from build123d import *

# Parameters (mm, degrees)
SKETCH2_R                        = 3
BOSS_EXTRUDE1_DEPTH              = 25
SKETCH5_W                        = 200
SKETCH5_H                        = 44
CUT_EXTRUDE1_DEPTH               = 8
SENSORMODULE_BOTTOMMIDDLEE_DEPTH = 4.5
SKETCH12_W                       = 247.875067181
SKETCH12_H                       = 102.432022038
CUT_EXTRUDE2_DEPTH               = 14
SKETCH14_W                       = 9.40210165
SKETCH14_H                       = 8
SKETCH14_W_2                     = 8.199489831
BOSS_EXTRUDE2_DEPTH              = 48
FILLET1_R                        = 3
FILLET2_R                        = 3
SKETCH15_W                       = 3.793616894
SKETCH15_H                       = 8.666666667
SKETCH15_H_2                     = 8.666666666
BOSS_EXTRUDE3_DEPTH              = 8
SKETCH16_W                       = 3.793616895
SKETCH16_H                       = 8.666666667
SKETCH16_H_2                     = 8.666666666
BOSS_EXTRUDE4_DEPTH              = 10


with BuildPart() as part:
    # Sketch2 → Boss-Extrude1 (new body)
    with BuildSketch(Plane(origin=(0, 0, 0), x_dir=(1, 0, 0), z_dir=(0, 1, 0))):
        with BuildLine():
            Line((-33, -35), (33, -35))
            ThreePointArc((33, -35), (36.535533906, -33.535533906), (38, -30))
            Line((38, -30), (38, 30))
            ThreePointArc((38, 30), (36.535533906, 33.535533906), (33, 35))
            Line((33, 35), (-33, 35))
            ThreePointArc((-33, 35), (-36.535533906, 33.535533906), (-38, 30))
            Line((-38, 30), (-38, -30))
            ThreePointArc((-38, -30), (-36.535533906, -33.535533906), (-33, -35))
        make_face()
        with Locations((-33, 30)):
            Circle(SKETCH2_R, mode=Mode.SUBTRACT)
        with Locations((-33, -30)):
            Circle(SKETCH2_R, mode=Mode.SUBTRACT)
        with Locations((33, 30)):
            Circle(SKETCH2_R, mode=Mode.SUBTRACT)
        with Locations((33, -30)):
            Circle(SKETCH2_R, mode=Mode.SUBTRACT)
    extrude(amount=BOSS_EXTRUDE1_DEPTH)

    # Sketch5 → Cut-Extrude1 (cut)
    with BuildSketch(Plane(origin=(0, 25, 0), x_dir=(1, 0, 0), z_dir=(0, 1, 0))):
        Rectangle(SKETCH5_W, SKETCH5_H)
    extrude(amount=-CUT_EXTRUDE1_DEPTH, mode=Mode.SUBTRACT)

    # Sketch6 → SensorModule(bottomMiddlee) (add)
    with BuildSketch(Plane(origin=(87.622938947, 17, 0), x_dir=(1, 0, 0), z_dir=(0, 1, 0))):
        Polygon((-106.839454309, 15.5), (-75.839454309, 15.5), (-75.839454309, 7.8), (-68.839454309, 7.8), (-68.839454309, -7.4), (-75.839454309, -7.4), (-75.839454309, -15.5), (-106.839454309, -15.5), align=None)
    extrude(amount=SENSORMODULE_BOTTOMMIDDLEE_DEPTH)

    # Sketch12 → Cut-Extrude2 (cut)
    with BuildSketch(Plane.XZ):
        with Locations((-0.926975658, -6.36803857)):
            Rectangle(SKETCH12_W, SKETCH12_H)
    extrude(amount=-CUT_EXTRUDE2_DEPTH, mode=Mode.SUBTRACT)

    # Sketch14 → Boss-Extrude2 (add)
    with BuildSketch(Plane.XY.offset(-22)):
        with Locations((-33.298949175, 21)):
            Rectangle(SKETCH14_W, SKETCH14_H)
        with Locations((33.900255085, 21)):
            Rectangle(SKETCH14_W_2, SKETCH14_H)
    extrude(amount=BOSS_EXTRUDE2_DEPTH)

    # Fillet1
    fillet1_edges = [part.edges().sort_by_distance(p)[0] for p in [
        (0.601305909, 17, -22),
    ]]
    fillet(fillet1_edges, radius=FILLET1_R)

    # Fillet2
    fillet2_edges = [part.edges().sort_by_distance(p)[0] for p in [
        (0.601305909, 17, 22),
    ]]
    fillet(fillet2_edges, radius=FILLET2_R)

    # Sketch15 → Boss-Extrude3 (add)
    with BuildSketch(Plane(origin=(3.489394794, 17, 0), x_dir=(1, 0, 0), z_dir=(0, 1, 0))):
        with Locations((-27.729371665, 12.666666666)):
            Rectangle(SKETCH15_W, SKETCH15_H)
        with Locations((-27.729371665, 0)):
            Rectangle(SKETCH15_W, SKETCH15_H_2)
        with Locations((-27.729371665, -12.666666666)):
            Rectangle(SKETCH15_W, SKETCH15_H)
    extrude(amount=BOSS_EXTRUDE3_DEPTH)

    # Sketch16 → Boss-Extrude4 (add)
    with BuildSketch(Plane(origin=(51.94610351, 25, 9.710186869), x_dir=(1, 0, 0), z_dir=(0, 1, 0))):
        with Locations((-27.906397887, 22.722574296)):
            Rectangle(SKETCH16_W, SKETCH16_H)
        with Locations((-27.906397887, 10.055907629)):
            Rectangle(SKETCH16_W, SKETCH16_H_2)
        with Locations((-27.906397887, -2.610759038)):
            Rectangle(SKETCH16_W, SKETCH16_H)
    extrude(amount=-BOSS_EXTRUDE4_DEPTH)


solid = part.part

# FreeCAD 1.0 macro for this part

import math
import FreeCAD as App
import Part
import Sketcher
Q = App.Units.Quantity


def edges_at(feature, points):
    """Names of the edges that pass closest to the given points."""
    edges = feature.Shape.Edges
    near = lambda p: min(range(len(edges)), key=lambda i: edges[i].distToShape(Part.Vertex(*p))[0])
    return sorted({f"Edge{near(p) + 1}" for p in points})

doc = App.newDocument("Part")
body = doc.addObject("PartDesign::Body", "Body")

sketch1 = doc.addObject("Sketcher::SketchObject", "Sketch")
body.addObject(sketch1)
sketch1.AttachmentSupport = (doc.XZ_Plane, [""])
sketch1.MapMode = "FlatFace"
sketch1.addGeometry([
    Part.LineSegment(App.Vector(-33, 35, 0), App.Vector(33, 35, 0)),
    Part.ArcOfCircle(Part.Circle(App.Vector(33, 30, 0), App.Vector(0, 0, 1), 5), math.radians(0), math.radians(90)),
    Part.LineSegment(App.Vector(38, 30, 0), App.Vector(38, -30, 0)),
    Part.ArcOfCircle(Part.Circle(App.Vector(33, -30, 0), App.Vector(0, 0, 1), 5), math.radians(-90), math.radians(0)),
    Part.LineSegment(App.Vector(33, -35, 0), App.Vector(-33, -35, 0)),
    Part.ArcOfCircle(Part.Circle(App.Vector(-33, -30, 0), App.Vector(0, 0, 1), 5), math.radians(180), math.radians(270)),
    Part.LineSegment(App.Vector(-38, -30, 0), App.Vector(-38, 30, 0)),
    Part.ArcOfCircle(Part.Circle(App.Vector(-33, 30, 0), App.Vector(0, 0, 1), 5), math.radians(90), math.radians(180)),
    Part.Circle(App.Vector(-33, 30, 0), App.Vector(0, 0, 1), 3),
    Part.Circle(App.Vector(33, 30, 0), App.Vector(0, 0, 1), 3),
    Part.Circle(App.Vector(-33, -30, 0), App.Vector(0, 0, 1), 3),
    Part.Circle(App.Vector(33, -30, 0), App.Vector(0, 0, 1), 3),
], False)
sketch1.addConstraint([
    Sketcher.Constraint("Tangent", 0, 2, 1, 2),
    Sketcher.Constraint("Tangent", 1, 1, 2, 1),
    Sketcher.Constraint("Tangent", 2, 2, 3, 2),
    Sketcher.Constraint("Tangent", 3, 1, 4, 1),
    Sketcher.Constraint("Tangent", 4, 2, 5, 2),
    Sketcher.Constraint("Tangent", 5, 1, 6, 1),
    Sketcher.Constraint("Tangent", 6, 2, 7, 2),
    Sketcher.Constraint("Tangent", 7, 1, 0, 1),
    Sketcher.Constraint("Horizontal", 0),
    Sketcher.Constraint("Vertical", 2),
    Sketcher.Constraint("Horizontal", 4),
    Sketcher.Constraint("Vertical", 6),
    Sketcher.Constraint("Coincident", 8, 3, 7, 3),
    Sketcher.Constraint("Coincident", 9, 3, 1, 3),
    Sketcher.Constraint("Coincident", 10, 3, 5, 3),
    Sketcher.Constraint("Coincident", 11, 3, 3, 3),
    Sketcher.Constraint("Equal", 1, 3),
    Sketcher.Constraint("Equal", 3, 5),
    Sketcher.Constraint("Equal", 5, 7),
    Sketcher.Constraint("Equal", 8, 9),
    Sketcher.Constraint("Equal", 9, 10),
    Sketcher.Constraint("Equal", 10, 11),
    Sketcher.Constraint("Symmetric", 1, 3, 5, 3, -1, 1),
    Sketcher.Constraint("Diameter", 8, Q("6 mm")),
    Sketcher.Constraint("Radius", 1, Q("5 mm")),
    Sketcher.Constraint("DistanceX", 0, 1, 0, 2, Q("66 mm")),
    Sketcher.Constraint("DistanceY", 2, 2, 2, 1, Q("60 mm")),
])
pad1 = doc.addObject("PartDesign::Pad", "Pad")
body.addObject(pad1)
pad1.Profile = sketch1
pad1.Length = 25
pad1.Reversed = True

sketch2 = doc.addObject("Sketcher::SketchObject", "Sketch001")
body.addObject(sketch2)
sketch2.AttachmentSupport = (doc.XZ_Plane, [""])
sketch2.MapMode = "FlatFace"
sketch2.AttachmentOffset = App.Placement(App.Vector(0, 0, -25), App.Rotation())
sketch2.addGeometry([
    Part.LineSegment(App.Vector(-100, -22, 0), App.Vector(-100, 22, 0)),
    Part.LineSegment(App.Vector(-100, 22, 0), App.Vector(100, 22, 0)),
    Part.LineSegment(App.Vector(100, 22, 0), App.Vector(100, -22, 0)),
    Part.LineSegment(App.Vector(100, -22, 0), App.Vector(-100, -22, 0)),
], False)
sketch2.addConstraint([
    Sketcher.Constraint("Coincident", 0, 2, 1, 1),
    Sketcher.Constraint("Coincident", 1, 2, 2, 1),
    Sketcher.Constraint("Coincident", 2, 2, 3, 1),
    Sketcher.Constraint("Coincident", 3, 2, 0, 1),
    Sketcher.Constraint("Vertical", 0),
    Sketcher.Constraint("Horizontal", 1),
    Sketcher.Constraint("Vertical", 2),
    Sketcher.Constraint("Horizontal", 3),
    Sketcher.Constraint("Symmetric", 0, 2, 2, 2, -1, 1),
    Sketcher.Constraint("DistanceX", 1, 1, 1, 2, Q("200 mm")),
    Sketcher.Constraint("DistanceY", 0, 1, 0, 2, Q("44 mm")),
])
pocket1 = doc.addObject("PartDesign::Pocket", "Pocket")
body.addObject(pocket1)
pocket1.Profile = sketch2
pocket1.Length = 8
pocket1.Reversed = True

sketch3 = doc.addObject("Sketcher::SketchObject", "Sketch002")
body.addObject(sketch3)
sketch3.AttachmentSupport = (doc.XZ_Plane, [""])
sketch3.MapMode = "FlatFace"
sketch3.AttachmentOffset = App.Placement(App.Vector(0, 0, -17), App.Rotation())
sketch3.addGeometry([
    Part.LineSegment(App.Vector(11.783485, -15.5, 0), App.Vector(-19.216515, -15.5, 0)),
    Part.LineSegment(App.Vector(-19.216515, -15.5, 0), App.Vector(-19.216515, 15.5, 0)),
    Part.LineSegment(App.Vector(-19.216515, 15.5, 0), App.Vector(11.783485, 15.5, 0)),
    Part.LineSegment(App.Vector(11.783485, 15.5, 0), App.Vector(11.783485, 7.4, 0)),
    Part.LineSegment(App.Vector(11.783485, 7.4, 0), App.Vector(18.783485, 7.4, 0)),
    Part.LineSegment(App.Vector(18.783485, 7.4, 0), App.Vector(18.783485, -7.8, 0)),
    Part.LineSegment(App.Vector(18.783485, -7.8, 0), App.Vector(11.783485, -7.8, 0)),
    Part.LineSegment(App.Vector(11.783485, -7.8, 0), App.Vector(11.783485, -15.5, 0)),
], False)
sketch3.addConstraint([
    Sketcher.Constraint("Coincident", 0, 2, 1, 1),
    Sketcher.Constraint("Coincident", 1, 2, 2, 1),
    Sketcher.Constraint("Coincident", 2, 2, 3, 1),
    Sketcher.Constraint("Coincident", 3, 2, 4, 1),
    Sketcher.Constraint("Coincident", 4, 2, 5, 1),
    Sketcher.Constraint("Coincident", 5, 2, 6, 1),
    Sketcher.Constraint("Coincident", 6, 2, 7, 1),
    Sketcher.Constraint("Coincident", 7, 2, 0, 1),
    Sketcher.Constraint("Horizontal", 0),
    Sketcher.Constraint("Vertical", 1),
    Sketcher.Constraint("Horizontal", 2),
    Sketcher.Constraint("Vertical", 3),
    Sketcher.Constraint("Horizontal", 4),
    Sketcher.Constraint("Vertical", 5),
    Sketcher.Constraint("Horizontal", 6),
    Sketcher.Constraint("Vertical", 7),
    Sketcher.Constraint("Symmetric", 2, 2, 7, 2, -1),
    Sketcher.Constraint("Equal", 2, 1),
    Sketcher.Constraint("DistanceX", 0, 2, 0, 1, Q("31 mm")),
    Sketcher.Constraint("DistanceX", 4, 1, 4, 2, Q("7 mm")),
    Sketcher.Constraint("DistanceY", 3, 2, 3, 1, Q("8.1 mm")),
    Sketcher.Constraint("DistanceY", 5, 2, 5, 1, Q("15.2 mm")),
    Sketcher.Constraint("DistanceX", 0, 2, -1, 1, Q("19.216515 mm")),
])
pad2 = doc.addObject("PartDesign::Pad", "Pad001")
body.addObject(pad2)
pad2.Profile = sketch3
pad2.Length = 4.5
pad2.Reversed = True

sketch4 = doc.addObject("Sketcher::SketchObject", "Sketch003")
body.addObject(sketch4)
sketch4.AttachmentSupport = (doc.XZ_Plane, [""])
sketch4.MapMode = "FlatFace"
sketch4.addGeometry([
    Part.LineSegment(App.Vector(-124.864509, 44.847972, 0), App.Vector(-124.864509, -57.58405, 0)),
    Part.LineSegment(App.Vector(-124.864509, -57.58405, 0), App.Vector(123.010558, -57.58405, 0)),
    Part.LineSegment(App.Vector(123.010558, -57.58405, 0), App.Vector(123.010558, 44.847972, 0)),
    Part.LineSegment(App.Vector(123.010558, 44.847972, 0), App.Vector(-124.864509, 44.847972, 0)),
], False)
sketch4.addConstraint([
    Sketcher.Constraint("Coincident", 0, 2, 1, 1),
    Sketcher.Constraint("Coincident", 1, 2, 2, 1),
    Sketcher.Constraint("Coincident", 2, 2, 3, 1),
    Sketcher.Constraint("Coincident", 3, 2, 0, 1),
    Sketcher.Constraint("Vertical", 0),
    Sketcher.Constraint("Horizontal", 1),
    Sketcher.Constraint("Vertical", 2),
    Sketcher.Constraint("Horizontal", 3),
    Sketcher.Constraint("DistanceX", 1, 1, 1, 2, Q("247.875067 mm")),
    Sketcher.Constraint("DistanceY", 0, 2, 0, 1, Q("102.432022 mm")),
    Sketcher.Constraint("DistanceX", 0, 2, -1, 1, Q("124.864509 mm")),
    Sketcher.Constraint("DistanceY", 0, 2, -1, 1, Q("57.58405 mm")),
])
pocket2 = doc.addObject("PartDesign::Pocket", "Pocket001")
body.addObject(pocket2)
pocket2.Profile = sketch4
pocket2.Length = 14

sketch5 = doc.addObject("Sketcher::SketchObject", "Sketch004")
body.addObject(sketch5)
sketch5.AttachmentSupport = (doc.XY_Plane, [""])
sketch5.MapMode = "FlatFace"
sketch5.AttachmentOffset = App.Placement(App.Vector(0, 0, -22), App.Rotation())
sketch5.addGeometry([
    Part.LineSegment(App.Vector(-38, 25, 0), App.Vector(-38, 17, 0)),
    Part.LineSegment(App.Vector(-38, 17, 0), App.Vector(-28.597898, 17, 0)),
    Part.LineSegment(App.Vector(-28.597898, 17, 0), App.Vector(-28.597898, 25, 0)),
    Part.LineSegment(App.Vector(-28.597898, 25, 0), App.Vector(-38, 25, 0)),
    Part.LineSegment(App.Vector(29.80051, 25, 0), App.Vector(29.80051, 17, 0)),
    Part.LineSegment(App.Vector(29.80051, 17, 0), App.Vector(38, 17, 0)),
    Part.LineSegment(App.Vector(38, 17, 0), App.Vector(38, 25, 0)),
    Part.LineSegment(App.Vector(38, 25, 0), App.Vector(29.80051, 25, 0)),
], False)
sketch5.addConstraint([
    Sketcher.Constraint("Coincident", 0, 2, 1, 1),
    Sketcher.Constraint("Coincident", 1, 2, 2, 1),
    Sketcher.Constraint("Coincident", 2, 2, 3, 1),
    Sketcher.Constraint("Coincident", 3, 2, 0, 1),
    Sketcher.Constraint("Coincident", 4, 2, 5, 1),
    Sketcher.Constraint("Coincident", 5, 2, 6, 1),
    Sketcher.Constraint("Coincident", 6, 2, 7, 1),
    Sketcher.Constraint("Coincident", 7, 2, 4, 1),
    Sketcher.Constraint("Vertical", 0),
    Sketcher.Constraint("Horizontal", 1),
    Sketcher.Constraint("Vertical", 2),
    Sketcher.Constraint("Horizontal", 3),
    Sketcher.Constraint("Vertical", 4),
    Sketcher.Constraint("Horizontal", 5),
    Sketcher.Constraint("Vertical", 6),
    Sketcher.Constraint("Horizontal", 7),
    Sketcher.Constraint("Symmetric", 0, 2, 5, 2, -2),
    Sketcher.Constraint("Horizontal", 3, 2, 6, 2),
    Sketcher.Constraint("DistanceY", 0, 2, 0, 1, Q("8 mm")),
    Sketcher.Constraint("DistanceX", 0, 2, -1, 1, Q("38 mm")),
    Sketcher.Constraint("DistanceY", -1, 1, 0, 2, Q("17 mm")),
    Sketcher.Constraint("DistanceX", 1, 1, 1, 2, Q("9.402102 mm")),
    Sketcher.Constraint("DistanceX", 5, 1, 5, 2, Q("8.19949 mm")),
])
pad3 = doc.addObject("PartDesign::Pad", "Pad002")
body.addObject(pad3)
pad3.Profile = sketch5
pad3.Length = 48
doc.recompute()

fillet = doc.addObject("PartDesign::Fillet", "Fillet")
body.addObject(fillet)
fillet.Base = (pad3, edges_at(pad3, [(0.601, 17, -22)]))
fillet.Radius = 3
doc.recompute()

fillet2 = doc.addObject("PartDesign::Fillet", "Fillet001")
body.addObject(fillet2)
fillet2.Base = (fillet, edges_at(fillet, [(0.601, 17, 22)]))
fillet2.Radius = 3

sketch6 = doc.addObject("Sketcher::SketchObject", "Sketch005")
body.addObject(sketch6)
sketch6.AttachmentSupport = (doc.XZ_Plane, [""])
sketch6.MapMode = "FlatFace"
sketch6.AttachmentOffset = App.Placement(App.Vector(0, 0, -17), App.Rotation())
sketch6.addGeometry([
    Part.LineSegment(App.Vector(-26.136785, -17, 0), App.Vector(-26.136785, -8.333333, 0)),
    Part.LineSegment(App.Vector(-26.136785, -8.333333, 0), App.Vector(-22.343168, -8.333333, 0)),
    Part.LineSegment(App.Vector(-22.343168, -8.333333, 0), App.Vector(-22.343168, -17, 0)),
    Part.LineSegment(App.Vector(-22.343168, -17, 0), App.Vector(-26.136785, -17, 0)),
    Part.LineSegment(App.Vector(-26.136785, -4.333333, 0), App.Vector(-26.136785, 4.333333, 0)),
    Part.LineSegment(App.Vector(-26.136785, 4.333333, 0), App.Vector(-22.343168, 4.333333, 0)),
    Part.LineSegment(App.Vector(-22.343168, 4.333333, 0), App.Vector(-22.343168, -4.333333, 0)),
    Part.LineSegment(App.Vector(-22.343168, -4.333333, 0), App.Vector(-26.136785, -4.333333, 0)),
    Part.LineSegment(App.Vector(-26.136785, 8.333333, 0), App.Vector(-26.136785, 17, 0)),
    Part.LineSegment(App.Vector(-26.136785, 17, 0), App.Vector(-22.343168, 17, 0)),
    Part.LineSegment(App.Vector(-22.343168, 17, 0), App.Vector(-22.343168, 8.333333, 0)),
    Part.LineSegment(App.Vector(-22.343168, 8.333333, 0), App.Vector(-26.136785, 8.333333, 0)),
], False)
sketch6.addConstraint([
    Sketcher.Constraint("Coincident", 0, 2, 1, 1),
    Sketcher.Constraint("Coincident", 1, 2, 2, 1),
    Sketcher.Constraint("Coincident", 2, 2, 3, 1),
    Sketcher.Constraint("Coincident", 3, 2, 0, 1),
    Sketcher.Constraint("Coincident", 4, 2, 5, 1),
    Sketcher.Constraint("Coincident", 5, 2, 6, 1),
    Sketcher.Constraint("Coincident", 6, 2, 7, 1),
    Sketcher.Constraint("Coincident", 7, 2, 4, 1),
    Sketcher.Constraint("Coincident", 8, 2, 9, 1),
    Sketcher.Constraint("Coincident", 9, 2, 10, 1),
    Sketcher.Constraint("Coincident", 10, 2, 11, 1),
    Sketcher.Constraint("Coincident", 11, 2, 8, 1),
    Sketcher.Constraint("Vertical", 0),
    Sketcher.Constraint("Horizontal", 1),
    Sketcher.Constraint("Vertical", 2),
    Sketcher.Constraint("Horizontal", 3),
    Sketcher.Constraint("Vertical", 4),
    Sketcher.Constraint("Horizontal", 5),
    Sketcher.Constraint("Vertical", 6),
    Sketcher.Constraint("Horizontal", 7),
    Sketcher.Constraint("Vertical", 8),
    Sketcher.Constraint("Horizontal", 9),
    Sketcher.Constraint("Vertical", 10),
    Sketcher.Constraint("Horizontal", 11),
    Sketcher.Constraint("Symmetric", 3, 2, 8, 2, -1),
    Sketcher.Constraint("Symmetric", 1, 2, 10, 2, -1),
    Sketcher.Constraint("Vertical", 3, 2, 4, 2),
    Sketcher.Constraint("Vertical", 2, 2, 5, 2),
    Sketcher.Constraint("Equal", 2, 4),
    Sketcher.Constraint("DistanceY", 2, 2, -1, 1, Q("17 mm")),
    Sketcher.Constraint("DistanceY", 1, 2, 6, 2, Q("4 mm")),
    Sketcher.Constraint("DistanceY", 5, 2, 10, 2, Q("4 mm")),
    Sketcher.Constraint("DistanceX", 1, 1, 1, 2, Q("3.793617 mm")),
    Sketcher.Constraint("DistanceX", 1, 2, -1, 1, Q("22.343168 mm")),
])
pad4 = doc.addObject("PartDesign::Pad", "Pad003")
body.addObject(pad4)
pad4.Profile = sketch6
pad4.Length = 8
pad4.Reversed = True

sketch7 = doc.addObject("Sketcher::SketchObject", "Sketch006")
body.addObject(sketch7)
sketch7.AttachmentSupport = (doc.XZ_Plane, [""])
sketch7.MapMode = "FlatFace"
sketch7.AttachmentOffset = App.Placement(App.Vector(0, 0, -25), App.Rotation())
sketch7.addGeometry([
    Part.LineSegment(App.Vector(22.142897, -17.345721, 0), App.Vector(22.142897, -8.679054, 0)),
    Part.LineSegment(App.Vector(22.142897, -8.679054, 0), App.Vector(25.936514, -8.679054, 0)),
    Part.LineSegment(App.Vector(25.936514, -8.679054, 0), App.Vector(25.936514, -17.345721, 0)),
    Part.LineSegment(App.Vector(25.936514, -17.345721, 0), App.Vector(22.142897, -17.345721, 0)),
    Part.LineSegment(App.Vector(22.142897, -4.679054, 0), App.Vector(22.142897, 3.987613, 0)),
    Part.LineSegment(App.Vector(22.142897, 3.987613, 0), App.Vector(25.936514, 3.987613, 0)),
    Part.LineSegment(App.Vector(25.936514, 3.987613, 0), App.Vector(25.936514, -4.679054, 0)),
    Part.LineSegment(App.Vector(25.936514, -4.679054, 0), App.Vector(22.142897, -4.679054, 0)),
    Part.LineSegment(App.Vector(22.142897, 7.987613, 0), App.Vector(22.142897, 16.654279, 0)),
    Part.LineSegment(App.Vector(22.142897, 16.654279, 0), App.Vector(25.936514, 16.654279, 0)),
    Part.LineSegment(App.Vector(25.936514, 16.654279, 0), App.Vector(25.936514, 7.987613, 0)),
    Part.LineSegment(App.Vector(25.936514, 7.987613, 0), App.Vector(22.142897, 7.987613, 0)),
], False)
sketch7.addConstraint([
    Sketcher.Constraint("Coincident", 0, 2, 1, 1),
    Sketcher.Constraint("Coincident", 1, 2, 2, 1),
    Sketcher.Constraint("Coincident", 2, 2, 3, 1),
    Sketcher.Constraint("Coincident", 3, 2, 0, 1),
    Sketcher.Constraint("Coincident", 4, 2, 5, 1),
    Sketcher.Constraint("Coincident", 5, 2, 6, 1),
    Sketcher.Constraint("Coincident", 6, 2, 7, 1),
    Sketcher.Constraint("Coincident", 7, 2, 4, 1),
    Sketcher.Constraint("Coincident", 8, 2, 9, 1),
    Sketcher.Constraint("Coincident", 9, 2, 10, 1),
    Sketcher.Constraint("Coincident", 10, 2, 11, 1),
    Sketcher.Constraint("Coincident", 11, 2, 8, 1),
    Sketcher.Constraint("Vertical", 0),
    Sketcher.Constraint("Horizontal", 1),
    Sketcher.Constraint("Vertical", 2),
    Sketcher.Constraint("Horizontal", 3),
    Sketcher.Constraint("Vertical", 4),
    Sketcher.Constraint("Horizontal", 5),
    Sketcher.Constraint("Vertical", 6),
    Sketcher.Constraint("Horizontal", 7),
    Sketcher.Constraint("Vertical", 8),
    Sketcher.Constraint("Horizontal", 9),
    Sketcher.Constraint("Vertical", 10),
    Sketcher.Constraint("Horizontal", 11),
    Sketcher.Constraint("Vertical", 3, 2, 4, 2),
    Sketcher.Constraint("Vertical", 2, 2, 5, 2),
    Sketcher.Constraint("Vertical", 7, 2, 8, 2),
    Sketcher.Constraint("Vertical", 6, 2, 9, 2),
    Sketcher.Constraint("Equal", 2, 4),
    Sketcher.Constraint("Equal", 6, 8),
    Sketcher.Constraint("DistanceY", 1, 2, 6, 2, Q("4 mm")),
    Sketcher.Constraint("DistanceY", 5, 2, 10, 2, Q("4 mm")),
    Sketcher.Constraint("DistanceX", 1, 1, 1, 2, Q("3.793617 mm")),
    Sketcher.Constraint("DistanceY", 0, 1, 0, 2, Q("8.666667 mm")),
    Sketcher.Constraint("DistanceY", 2, 2, -1, 1, Q("17.345721 mm")),
    Sketcher.Constraint("DistanceX", -1, 1, 0, 2, Q("22.142897 mm")),
])
pad5 = doc.addObject("PartDesign::Pad", "Pad004")
body.addObject(pad5)
pad5.Profile = sketch7
pad5.Length = 10

doc.recompute()
